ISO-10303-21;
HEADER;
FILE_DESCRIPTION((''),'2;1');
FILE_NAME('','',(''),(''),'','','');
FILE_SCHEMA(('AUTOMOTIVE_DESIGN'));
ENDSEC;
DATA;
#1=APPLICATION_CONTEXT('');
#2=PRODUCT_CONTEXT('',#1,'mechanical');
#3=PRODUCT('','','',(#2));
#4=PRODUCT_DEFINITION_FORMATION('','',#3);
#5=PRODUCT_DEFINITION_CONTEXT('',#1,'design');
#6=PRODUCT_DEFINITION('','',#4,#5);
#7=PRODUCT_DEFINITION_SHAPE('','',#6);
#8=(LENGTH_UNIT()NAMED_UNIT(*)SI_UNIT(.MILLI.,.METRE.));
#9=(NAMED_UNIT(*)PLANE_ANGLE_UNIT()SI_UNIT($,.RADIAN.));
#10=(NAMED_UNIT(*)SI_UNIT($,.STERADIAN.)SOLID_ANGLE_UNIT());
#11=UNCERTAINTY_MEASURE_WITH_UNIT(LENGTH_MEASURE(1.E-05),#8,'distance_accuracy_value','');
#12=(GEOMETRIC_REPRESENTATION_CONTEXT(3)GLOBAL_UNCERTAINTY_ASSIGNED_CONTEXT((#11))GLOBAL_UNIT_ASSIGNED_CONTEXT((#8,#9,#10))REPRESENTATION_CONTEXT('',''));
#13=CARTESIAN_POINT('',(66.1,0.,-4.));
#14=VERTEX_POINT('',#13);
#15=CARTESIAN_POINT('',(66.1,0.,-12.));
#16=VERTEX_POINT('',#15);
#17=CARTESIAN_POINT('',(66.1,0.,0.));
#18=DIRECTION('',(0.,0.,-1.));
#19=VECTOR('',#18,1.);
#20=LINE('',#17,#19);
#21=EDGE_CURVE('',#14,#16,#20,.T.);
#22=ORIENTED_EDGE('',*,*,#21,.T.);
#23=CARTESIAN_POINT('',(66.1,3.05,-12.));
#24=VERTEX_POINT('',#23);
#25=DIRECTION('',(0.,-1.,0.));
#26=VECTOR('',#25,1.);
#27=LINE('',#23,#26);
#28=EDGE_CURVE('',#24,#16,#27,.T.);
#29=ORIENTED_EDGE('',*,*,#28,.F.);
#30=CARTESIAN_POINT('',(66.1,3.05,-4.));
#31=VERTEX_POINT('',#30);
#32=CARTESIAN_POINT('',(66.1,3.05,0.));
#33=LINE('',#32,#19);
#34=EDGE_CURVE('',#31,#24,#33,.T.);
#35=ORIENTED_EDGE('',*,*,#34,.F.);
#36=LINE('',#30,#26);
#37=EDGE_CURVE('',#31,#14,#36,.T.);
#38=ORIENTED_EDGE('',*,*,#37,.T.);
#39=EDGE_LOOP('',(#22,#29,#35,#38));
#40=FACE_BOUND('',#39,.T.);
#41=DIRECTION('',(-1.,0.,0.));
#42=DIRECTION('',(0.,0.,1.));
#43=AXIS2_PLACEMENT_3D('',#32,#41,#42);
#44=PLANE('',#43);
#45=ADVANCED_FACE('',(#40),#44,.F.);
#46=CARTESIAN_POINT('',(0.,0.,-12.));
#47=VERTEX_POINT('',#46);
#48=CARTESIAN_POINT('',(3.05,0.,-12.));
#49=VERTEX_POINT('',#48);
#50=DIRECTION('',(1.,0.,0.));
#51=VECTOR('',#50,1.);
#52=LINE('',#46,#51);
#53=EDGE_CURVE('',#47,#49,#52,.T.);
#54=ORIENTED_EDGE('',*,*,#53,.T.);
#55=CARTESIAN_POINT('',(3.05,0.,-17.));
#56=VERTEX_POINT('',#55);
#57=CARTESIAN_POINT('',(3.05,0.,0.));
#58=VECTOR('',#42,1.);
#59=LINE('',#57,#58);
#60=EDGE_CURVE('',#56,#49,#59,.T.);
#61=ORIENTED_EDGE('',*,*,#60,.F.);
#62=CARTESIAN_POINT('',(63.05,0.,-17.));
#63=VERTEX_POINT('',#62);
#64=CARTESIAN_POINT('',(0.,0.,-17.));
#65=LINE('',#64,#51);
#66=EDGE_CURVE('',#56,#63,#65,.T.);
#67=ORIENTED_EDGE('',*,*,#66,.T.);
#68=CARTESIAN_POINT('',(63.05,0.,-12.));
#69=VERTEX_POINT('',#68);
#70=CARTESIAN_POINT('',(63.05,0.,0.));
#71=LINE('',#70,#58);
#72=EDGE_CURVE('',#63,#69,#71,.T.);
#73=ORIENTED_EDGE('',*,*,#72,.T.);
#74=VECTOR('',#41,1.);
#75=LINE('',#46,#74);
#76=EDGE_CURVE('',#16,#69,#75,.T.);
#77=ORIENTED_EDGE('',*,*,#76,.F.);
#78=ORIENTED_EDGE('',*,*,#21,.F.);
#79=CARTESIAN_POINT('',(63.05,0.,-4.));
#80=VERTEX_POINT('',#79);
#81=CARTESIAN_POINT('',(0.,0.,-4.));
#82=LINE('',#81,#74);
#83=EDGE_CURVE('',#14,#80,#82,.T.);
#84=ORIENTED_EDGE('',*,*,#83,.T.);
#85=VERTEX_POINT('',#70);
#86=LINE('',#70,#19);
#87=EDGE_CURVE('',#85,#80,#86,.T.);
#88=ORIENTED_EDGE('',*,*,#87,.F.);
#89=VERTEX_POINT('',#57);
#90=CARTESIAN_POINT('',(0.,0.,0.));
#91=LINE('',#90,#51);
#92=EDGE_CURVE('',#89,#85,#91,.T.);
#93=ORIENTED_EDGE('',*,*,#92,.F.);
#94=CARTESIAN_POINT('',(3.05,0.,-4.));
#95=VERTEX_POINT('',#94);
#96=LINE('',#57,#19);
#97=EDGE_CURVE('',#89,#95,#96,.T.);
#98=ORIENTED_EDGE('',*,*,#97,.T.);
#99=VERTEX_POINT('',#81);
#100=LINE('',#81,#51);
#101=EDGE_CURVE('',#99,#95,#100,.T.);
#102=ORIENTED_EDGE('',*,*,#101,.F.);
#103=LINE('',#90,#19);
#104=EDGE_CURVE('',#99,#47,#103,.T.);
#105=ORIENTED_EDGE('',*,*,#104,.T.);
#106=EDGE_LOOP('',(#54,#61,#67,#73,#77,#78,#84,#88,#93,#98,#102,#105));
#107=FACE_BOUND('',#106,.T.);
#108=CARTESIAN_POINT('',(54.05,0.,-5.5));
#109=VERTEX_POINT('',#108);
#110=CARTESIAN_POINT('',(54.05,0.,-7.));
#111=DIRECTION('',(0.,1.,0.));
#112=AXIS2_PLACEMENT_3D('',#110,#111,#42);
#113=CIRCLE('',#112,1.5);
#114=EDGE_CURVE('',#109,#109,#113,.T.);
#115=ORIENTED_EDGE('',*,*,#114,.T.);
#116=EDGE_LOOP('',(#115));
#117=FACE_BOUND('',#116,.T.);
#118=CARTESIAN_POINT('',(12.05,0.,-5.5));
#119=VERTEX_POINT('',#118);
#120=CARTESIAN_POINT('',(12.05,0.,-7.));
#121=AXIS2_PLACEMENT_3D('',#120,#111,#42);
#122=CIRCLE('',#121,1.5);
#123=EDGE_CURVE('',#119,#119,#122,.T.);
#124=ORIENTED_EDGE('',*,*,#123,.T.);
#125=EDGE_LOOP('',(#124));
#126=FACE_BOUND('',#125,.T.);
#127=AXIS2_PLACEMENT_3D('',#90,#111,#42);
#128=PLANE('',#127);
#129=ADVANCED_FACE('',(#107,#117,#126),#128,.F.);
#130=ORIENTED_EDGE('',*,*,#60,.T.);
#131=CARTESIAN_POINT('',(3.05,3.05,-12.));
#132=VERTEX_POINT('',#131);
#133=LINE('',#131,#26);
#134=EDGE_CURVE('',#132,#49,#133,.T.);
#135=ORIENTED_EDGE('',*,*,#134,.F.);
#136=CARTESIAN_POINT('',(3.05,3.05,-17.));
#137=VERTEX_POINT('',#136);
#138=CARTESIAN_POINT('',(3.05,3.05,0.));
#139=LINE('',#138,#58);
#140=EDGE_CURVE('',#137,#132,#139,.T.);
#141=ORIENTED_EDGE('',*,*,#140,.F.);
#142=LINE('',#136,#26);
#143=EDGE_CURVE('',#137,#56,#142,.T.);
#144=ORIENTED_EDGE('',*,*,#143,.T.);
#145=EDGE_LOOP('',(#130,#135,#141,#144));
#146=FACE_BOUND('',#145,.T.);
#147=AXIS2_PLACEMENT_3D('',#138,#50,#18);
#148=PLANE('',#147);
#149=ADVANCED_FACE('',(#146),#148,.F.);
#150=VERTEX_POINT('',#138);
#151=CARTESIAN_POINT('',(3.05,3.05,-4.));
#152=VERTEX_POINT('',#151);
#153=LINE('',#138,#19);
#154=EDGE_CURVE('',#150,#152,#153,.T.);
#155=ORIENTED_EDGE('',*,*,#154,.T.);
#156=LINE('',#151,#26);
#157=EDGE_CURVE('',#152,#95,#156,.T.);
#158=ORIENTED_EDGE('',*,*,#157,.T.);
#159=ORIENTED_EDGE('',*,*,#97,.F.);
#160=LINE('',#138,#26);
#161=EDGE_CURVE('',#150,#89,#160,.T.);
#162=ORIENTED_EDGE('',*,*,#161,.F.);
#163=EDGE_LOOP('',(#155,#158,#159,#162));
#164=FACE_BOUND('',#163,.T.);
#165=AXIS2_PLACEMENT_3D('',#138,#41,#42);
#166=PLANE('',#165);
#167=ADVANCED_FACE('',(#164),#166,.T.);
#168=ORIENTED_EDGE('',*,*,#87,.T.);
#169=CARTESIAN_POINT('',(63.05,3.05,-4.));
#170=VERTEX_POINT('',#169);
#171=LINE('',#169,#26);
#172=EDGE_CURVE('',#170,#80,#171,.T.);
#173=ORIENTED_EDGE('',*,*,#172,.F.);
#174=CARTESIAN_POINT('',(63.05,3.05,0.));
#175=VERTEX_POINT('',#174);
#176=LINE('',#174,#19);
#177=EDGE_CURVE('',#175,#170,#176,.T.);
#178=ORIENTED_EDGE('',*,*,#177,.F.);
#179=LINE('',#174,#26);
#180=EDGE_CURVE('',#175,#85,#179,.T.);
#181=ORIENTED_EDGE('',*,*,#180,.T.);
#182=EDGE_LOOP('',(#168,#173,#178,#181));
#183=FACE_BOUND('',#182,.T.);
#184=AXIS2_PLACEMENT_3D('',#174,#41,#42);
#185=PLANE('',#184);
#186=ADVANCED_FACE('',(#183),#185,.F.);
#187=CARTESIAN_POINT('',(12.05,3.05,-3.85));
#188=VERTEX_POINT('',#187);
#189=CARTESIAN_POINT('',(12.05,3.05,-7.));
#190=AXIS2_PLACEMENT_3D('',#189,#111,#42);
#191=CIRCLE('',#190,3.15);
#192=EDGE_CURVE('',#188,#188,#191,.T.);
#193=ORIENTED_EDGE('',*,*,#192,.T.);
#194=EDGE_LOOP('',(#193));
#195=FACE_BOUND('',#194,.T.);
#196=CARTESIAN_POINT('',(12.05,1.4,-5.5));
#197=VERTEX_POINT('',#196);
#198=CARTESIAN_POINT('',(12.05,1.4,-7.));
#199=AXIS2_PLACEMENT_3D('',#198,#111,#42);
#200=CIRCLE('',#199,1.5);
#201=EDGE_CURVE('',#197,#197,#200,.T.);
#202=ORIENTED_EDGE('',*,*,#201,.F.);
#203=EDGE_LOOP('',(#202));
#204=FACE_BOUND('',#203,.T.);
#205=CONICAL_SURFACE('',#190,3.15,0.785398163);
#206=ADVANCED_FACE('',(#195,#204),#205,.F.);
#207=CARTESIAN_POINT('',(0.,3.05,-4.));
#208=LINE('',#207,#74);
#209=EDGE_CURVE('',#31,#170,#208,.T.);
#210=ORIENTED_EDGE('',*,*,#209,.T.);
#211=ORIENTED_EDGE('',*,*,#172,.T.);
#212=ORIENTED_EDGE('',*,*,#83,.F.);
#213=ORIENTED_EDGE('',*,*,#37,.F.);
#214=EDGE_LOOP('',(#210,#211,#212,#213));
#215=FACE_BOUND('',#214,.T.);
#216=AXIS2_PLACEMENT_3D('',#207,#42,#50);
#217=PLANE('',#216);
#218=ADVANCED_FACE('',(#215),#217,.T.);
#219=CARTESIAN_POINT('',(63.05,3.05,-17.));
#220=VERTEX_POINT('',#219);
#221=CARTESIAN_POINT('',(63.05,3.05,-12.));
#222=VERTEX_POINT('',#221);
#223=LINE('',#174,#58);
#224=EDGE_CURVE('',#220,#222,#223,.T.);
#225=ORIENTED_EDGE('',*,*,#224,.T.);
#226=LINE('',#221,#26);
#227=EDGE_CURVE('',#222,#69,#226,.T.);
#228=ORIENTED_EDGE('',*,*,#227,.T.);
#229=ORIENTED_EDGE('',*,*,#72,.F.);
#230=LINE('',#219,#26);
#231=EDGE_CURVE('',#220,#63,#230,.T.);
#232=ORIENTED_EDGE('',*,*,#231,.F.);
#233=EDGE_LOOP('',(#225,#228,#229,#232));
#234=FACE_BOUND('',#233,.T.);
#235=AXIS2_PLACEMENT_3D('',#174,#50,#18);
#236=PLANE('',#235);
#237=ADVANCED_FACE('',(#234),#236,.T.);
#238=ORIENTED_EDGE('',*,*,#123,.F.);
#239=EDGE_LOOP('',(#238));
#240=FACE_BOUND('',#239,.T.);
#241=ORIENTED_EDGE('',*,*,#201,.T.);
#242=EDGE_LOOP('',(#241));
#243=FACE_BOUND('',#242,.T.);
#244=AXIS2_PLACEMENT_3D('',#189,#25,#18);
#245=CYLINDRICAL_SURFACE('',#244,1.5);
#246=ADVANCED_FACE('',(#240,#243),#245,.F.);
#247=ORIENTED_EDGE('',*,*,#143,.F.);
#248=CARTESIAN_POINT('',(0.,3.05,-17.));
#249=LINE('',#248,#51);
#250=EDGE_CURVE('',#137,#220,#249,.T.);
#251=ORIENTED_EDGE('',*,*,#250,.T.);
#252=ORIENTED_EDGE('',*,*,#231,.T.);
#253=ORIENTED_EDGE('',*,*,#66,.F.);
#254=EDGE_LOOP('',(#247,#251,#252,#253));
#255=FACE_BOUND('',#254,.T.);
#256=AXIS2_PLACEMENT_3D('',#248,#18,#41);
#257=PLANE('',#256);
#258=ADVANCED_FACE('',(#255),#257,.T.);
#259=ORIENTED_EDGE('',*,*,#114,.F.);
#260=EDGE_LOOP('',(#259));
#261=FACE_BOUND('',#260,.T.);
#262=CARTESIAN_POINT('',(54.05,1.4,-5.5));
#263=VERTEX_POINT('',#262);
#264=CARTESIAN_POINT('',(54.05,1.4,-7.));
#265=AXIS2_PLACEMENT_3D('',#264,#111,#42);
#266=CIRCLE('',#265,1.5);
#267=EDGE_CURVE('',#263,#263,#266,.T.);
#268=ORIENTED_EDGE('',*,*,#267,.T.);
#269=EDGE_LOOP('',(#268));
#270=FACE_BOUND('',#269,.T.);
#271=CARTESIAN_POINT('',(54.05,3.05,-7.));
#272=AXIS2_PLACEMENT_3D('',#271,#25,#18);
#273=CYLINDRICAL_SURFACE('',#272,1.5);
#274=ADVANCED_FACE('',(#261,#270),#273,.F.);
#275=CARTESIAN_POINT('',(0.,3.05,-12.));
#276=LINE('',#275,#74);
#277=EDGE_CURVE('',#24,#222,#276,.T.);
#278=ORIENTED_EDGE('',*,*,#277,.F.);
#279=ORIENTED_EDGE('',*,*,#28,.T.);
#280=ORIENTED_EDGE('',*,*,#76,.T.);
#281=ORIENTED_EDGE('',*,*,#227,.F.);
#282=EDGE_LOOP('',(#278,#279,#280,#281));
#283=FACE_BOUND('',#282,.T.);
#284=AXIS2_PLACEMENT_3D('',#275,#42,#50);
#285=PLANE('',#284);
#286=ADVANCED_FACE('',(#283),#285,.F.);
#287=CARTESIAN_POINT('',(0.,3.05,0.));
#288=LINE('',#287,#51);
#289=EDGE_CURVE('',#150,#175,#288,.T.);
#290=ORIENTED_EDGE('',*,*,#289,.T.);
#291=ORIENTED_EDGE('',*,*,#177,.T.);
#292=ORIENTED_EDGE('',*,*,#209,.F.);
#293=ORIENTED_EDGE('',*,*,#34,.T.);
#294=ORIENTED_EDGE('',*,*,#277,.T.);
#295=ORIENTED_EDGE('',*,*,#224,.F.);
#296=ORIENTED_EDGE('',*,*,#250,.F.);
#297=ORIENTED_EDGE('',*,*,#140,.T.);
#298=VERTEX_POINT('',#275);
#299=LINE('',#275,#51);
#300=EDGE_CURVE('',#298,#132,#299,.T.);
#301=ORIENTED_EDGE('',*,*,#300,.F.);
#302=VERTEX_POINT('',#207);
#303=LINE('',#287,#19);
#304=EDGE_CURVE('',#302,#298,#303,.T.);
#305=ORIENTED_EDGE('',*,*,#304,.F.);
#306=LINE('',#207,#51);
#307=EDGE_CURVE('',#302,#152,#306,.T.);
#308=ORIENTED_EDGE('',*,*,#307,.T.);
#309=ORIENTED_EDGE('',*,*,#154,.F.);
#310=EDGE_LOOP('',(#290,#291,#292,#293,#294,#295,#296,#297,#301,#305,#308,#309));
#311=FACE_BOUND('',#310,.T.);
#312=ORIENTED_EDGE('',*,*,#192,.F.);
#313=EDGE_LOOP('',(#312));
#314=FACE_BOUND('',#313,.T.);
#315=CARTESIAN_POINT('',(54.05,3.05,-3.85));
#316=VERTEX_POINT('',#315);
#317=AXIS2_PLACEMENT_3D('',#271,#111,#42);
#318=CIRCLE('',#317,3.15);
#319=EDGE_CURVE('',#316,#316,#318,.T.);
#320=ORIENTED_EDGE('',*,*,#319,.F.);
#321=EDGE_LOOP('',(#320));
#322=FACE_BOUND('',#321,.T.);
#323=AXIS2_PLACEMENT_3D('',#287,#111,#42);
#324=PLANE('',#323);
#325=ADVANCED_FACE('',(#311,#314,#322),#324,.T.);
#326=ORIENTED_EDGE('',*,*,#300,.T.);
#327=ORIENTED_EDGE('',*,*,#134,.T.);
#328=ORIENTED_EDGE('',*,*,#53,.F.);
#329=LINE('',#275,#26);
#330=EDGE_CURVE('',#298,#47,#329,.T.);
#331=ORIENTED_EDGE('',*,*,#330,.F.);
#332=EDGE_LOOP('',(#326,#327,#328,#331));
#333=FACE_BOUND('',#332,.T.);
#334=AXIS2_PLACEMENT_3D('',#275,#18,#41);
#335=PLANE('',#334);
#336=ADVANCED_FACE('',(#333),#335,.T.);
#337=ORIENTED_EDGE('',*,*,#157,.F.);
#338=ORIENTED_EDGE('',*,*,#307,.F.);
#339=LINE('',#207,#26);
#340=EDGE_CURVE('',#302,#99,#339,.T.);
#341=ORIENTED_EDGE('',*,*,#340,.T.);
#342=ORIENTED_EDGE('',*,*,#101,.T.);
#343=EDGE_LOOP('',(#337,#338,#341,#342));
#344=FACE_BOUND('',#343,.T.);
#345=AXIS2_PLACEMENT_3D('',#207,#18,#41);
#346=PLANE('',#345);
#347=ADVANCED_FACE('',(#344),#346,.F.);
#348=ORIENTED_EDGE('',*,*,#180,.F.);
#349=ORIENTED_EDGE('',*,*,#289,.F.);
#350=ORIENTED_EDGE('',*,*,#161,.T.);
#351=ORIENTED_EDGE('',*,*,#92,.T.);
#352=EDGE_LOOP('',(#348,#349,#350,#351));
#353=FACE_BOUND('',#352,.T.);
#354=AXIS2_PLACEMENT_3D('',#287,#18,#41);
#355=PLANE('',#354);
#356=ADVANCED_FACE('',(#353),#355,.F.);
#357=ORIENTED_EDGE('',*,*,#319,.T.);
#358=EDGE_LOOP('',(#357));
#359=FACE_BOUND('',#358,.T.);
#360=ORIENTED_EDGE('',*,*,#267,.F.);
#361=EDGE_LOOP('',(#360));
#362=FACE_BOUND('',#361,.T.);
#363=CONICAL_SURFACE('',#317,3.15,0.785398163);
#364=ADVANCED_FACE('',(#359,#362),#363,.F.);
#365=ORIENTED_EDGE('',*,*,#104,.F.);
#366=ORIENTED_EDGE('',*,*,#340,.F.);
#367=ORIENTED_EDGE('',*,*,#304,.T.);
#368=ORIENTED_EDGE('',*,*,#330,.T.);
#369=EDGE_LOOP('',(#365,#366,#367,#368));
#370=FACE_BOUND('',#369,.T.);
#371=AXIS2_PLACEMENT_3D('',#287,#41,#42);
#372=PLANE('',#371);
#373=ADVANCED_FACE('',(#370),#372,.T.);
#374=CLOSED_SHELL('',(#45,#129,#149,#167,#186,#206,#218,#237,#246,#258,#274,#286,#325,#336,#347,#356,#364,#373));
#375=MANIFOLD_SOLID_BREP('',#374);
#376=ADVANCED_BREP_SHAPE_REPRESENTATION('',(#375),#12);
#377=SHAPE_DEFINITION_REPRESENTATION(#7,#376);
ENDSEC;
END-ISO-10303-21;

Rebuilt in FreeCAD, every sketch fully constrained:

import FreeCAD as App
import Part
import Sketcher

V = App.Vector
Q = App.Units.Quantity


def add_polygon(sketch, points):
    """Adds a closed chain of lines whose ends are joined by coincident constraints."""
    first, n = sketch.GeometryCount, len(points)
    for a, b in zip(points, points[1:] + points[:1]):
        sketch.addGeometry(Part.LineSegment(App.Vector(*a, 0), App.Vector(*b, 0)), False)
    for i in range(n):
        sketch.addConstraint(Sketcher.Constraint("Coincident", first + i, 2, first + (i + 1) % n, 1))

doc = App.newDocument("Part")
body = doc.addObject("PartDesign::Body", "Body")

sketch1 = body.newObject("Sketcher::SketchObject", "Sketch")
sketch1.AttachmentSupport = (doc.getObject("XZ_Plane"), [""])
sketch1.MapMode = "FlatFace"
add_polygon(sketch1, [(3, -17), (3, -12), (0, -12), (0, -4), (3, -4), (3, 0), (63, 0), (63, -4), (66.1, -4), (66.1, -12), (63, -12), (63, -17)])
sketch1.addGeometry(Part.Circle(V(12.1, -7, 0), V(0, 0, 1), 1.5), False)
sketch1.addGeometry(Part.Circle(V(54, -7, 0), V(0, 0, 1), 1.5), False)
sketch1.addConstraint(Sketcher.Constraint("Vertical", 0))
sketch1.addConstraint(Sketcher.Constraint("Horizontal", 1))
sketch1.addConstraint(Sketcher.Constraint("Vertical", 2))
sketch1.addConstraint(Sketcher.Constraint("Horizontal", 3))
sketch1.addConstraint(Sketcher.Constraint("Vertical", 4))
sketch1.addConstraint(Sketcher.Constraint("Horizontal", 5))
sketch1.addConstraint(Sketcher.Constraint("Vertical", 6))
sketch1.addConstraint(Sketcher.Constraint("Horizontal", 7))
sketch1.addConstraint(Sketcher.Constraint("Vertical", 8))
sketch1.addConstraint(Sketcher.Constraint("Horizontal", 9))
sketch1.addConstraint(Sketcher.Constraint("Vertical", 10))
sketch1.addConstraint(Sketcher.Constraint("Horizontal", 11))
sketch1.addConstraint(Sketcher.Constraint("Equal", 12, 13))
sketch1.addConstraint(Sketcher.Constraint("PointOnObject", 1, 2, -2))
sketch1.addConstraint(Sketcher.Constraint("PointOnObject", 4, 2, -1))
sketch1.addConstraint(Sketcher.Constraint("Horizontal", 12, 3, 13, 3))
sketch1.addConstraint(Sketcher.Constraint("Horizontal", 3, 2, 6, 2))
sketch1.addConstraint(Sketcher.Constraint("Horizontal", 1, 2, 8, 2))
sketch1.addConstraint(Sketcher.Constraint("Vertical", 0, 2, 3, 2))
sketch1.addConstraint(Sketcher.Constraint("Vertical", 6, 2, 9, 2))
sketch1.addConstraint(Sketcher.Constraint("Equal", 3, 7))
sketch1.addConstraint(Sketcher.Constraint("Diameter", 12, Q("3 mm")))
sketch1.addConstraint(Sketcher.Constraint("DistanceX", 5, 1, 5, 2, Q("60 mm")))
sketch1.addConstraint(Sketcher.Constraint("DistanceY", 0, 1, 0, 2, Q("5 mm")))
sketch1.addConstraint(Sketcher.Constraint("DistanceY", 2, 1, 2, 2, Q("8 mm")))
sketch1.addConstraint(Sketcher.Constraint("DistanceY", 4, 1, 4, 2, Q("4 mm")))
sketch1.addConstraint(Sketcher.Constraint("DistanceY", 12, 3, -1, 1, Q("7 mm")))
sketch1.addConstraint(Sketcher.Constraint("DistanceX", 12, 3, 13, 3, Q("42 mm")))
sketch1.addConstraint(Sketcher.Constraint("DistanceX", 0, 2, 12, 3, Q("9 mm")))
sketch1.addConstraint(Sketcher.Constraint("DistanceX", 1, 2, 1, 1, Q("3.05 mm")))
pad1 = body.newObject("PartDesign::Pad", "Pad")
pad1.Profile = sketch1
pad1.Length = 3.05
pad1.Reversed = True

sketch2 = body.newObject("Sketcher::SketchObject", "Sketch001")
sketch2.AttachmentSupport = (doc.getObject("YZ_Plane"), [""])
sketch2.MapMode = "FlatFace"
sketch2.AttachmentOffset = App.Placement(V(0, 0, 12.05), App.Rotation())
add_polygon(sketch2, [(0, -7), (3, -7), (3, -3.9), (1.4, -5.5), (0, -5.5)])
sketch2.addGeometry(Part.LineSegment(V(3, -7, 0), V(0, -7, 0)), True)
sketch2.addConstraint(Sketcher.Constraint("Horizontal", 0))
sketch2.addConstraint(Sketcher.Constraint("Vertical", 1))
sketch2.addConstraint(Sketcher.Constraint("Horizontal", 3))
sketch2.addConstraint(Sketcher.Constraint("Vertical", 4))
sketch2.addConstraint(Sketcher.Constraint("Horizontal", 5))
sketch2.addConstraint(Sketcher.Constraint("Coincident", 5, 1, 0, 2))
sketch2.addConstraint(Sketcher.Constraint("PointOnObject", 3, 2, -2))
sketch2.addConstraint(Sketcher.Constraint("PointOnObject", 5, 2, -2))
sketch2.addConstraint(Sketcher.Constraint("Angle", 2, Q("-135 deg")))
sketch2.addConstraint(Sketcher.Constraint("DistanceX", 3, 2, 3, 1, Q("1.4 mm")))
sketch2.addConstraint(Sketcher.Constraint("DistanceY", 4, 2, 4, 1, Q("1.5 mm")))
sketch2.addConstraint(Sketcher.Constraint("DistanceY", 0, 2, -1, 1, Q("7 mm")))
sketch2.addConstraint(Sketcher.Constraint("DistanceX", 0, 1, 0, 2, Q("3.05 mm")))
groove = body.newObject("PartDesign::Groove", "Groove")
groove.Profile = sketch2
groove.ReferenceAxis = (sketch2, ["Axis0"])
groove.Angle = 360

sketch3 = body.newObject("Sketcher::SketchObject", "Sketch002")
sketch3.AttachmentSupport = (doc.getObject("YZ_Plane"), [""])
sketch3.MapMode = "FlatFace"
sketch3.AttachmentOffset = App.Placement(V(0, 0, 54.05), App.Rotation())
add_polygon(sketch3, [(0, -7), (3, -7), (3, -3.9), (1.4, -5.5), (0, -5.5)])
sketch3.addGeometry(Part.LineSegment(V(3, -7, 0), V(0, -7, 0)), True)
sketch3.addConstraint(Sketcher.Constraint("Horizontal", 0))
sketch3.addConstraint(Sketcher.Constraint("Vertical", 1))
sketch3.addConstraint(Sketcher.Constraint("Horizontal", 3))
sketch3.addConstraint(Sketcher.Constraint("Vertical", 4))
sketch3.addConstraint(Sketcher.Constraint("Horizontal", 5))
sketch3.addConstraint(Sketcher.Constraint("Coincident", 5, 1, 0, 2))
sketch3.addConstraint(Sketcher.Constraint("PointOnObject", 3, 2, -2))
sketch3.addConstraint(Sketcher.Constraint("PointOnObject", 5, 2, -2))
sketch3.addConstraint(Sketcher.Constraint("Angle", 2, Q("-135 deg")))
sketch3.addConstraint(Sketcher.Constraint("DistanceX", 3, 2, 3, 1, Q("1.4 mm")))
sketch3.addConstraint(Sketcher.Constraint("DistanceY", 4, 2, 4, 1, Q("1.5 mm")))
sketch3.addConstraint(Sketcher.Constraint("DistanceY", 0, 2, -1, 1, Q("7 mm")))
sketch3.addConstraint(Sketcher.Constraint("DistanceX", 0, 1, 0, 2, Q("3.05 mm")))
groove2 = body.newObject("PartDesign::Groove", "Groove001")
groove2.Profile = sketch3
groove2.ReferenceAxis = (sketch3, ["Axis0"])
groove2.Angle = 360

doc.recompute()
